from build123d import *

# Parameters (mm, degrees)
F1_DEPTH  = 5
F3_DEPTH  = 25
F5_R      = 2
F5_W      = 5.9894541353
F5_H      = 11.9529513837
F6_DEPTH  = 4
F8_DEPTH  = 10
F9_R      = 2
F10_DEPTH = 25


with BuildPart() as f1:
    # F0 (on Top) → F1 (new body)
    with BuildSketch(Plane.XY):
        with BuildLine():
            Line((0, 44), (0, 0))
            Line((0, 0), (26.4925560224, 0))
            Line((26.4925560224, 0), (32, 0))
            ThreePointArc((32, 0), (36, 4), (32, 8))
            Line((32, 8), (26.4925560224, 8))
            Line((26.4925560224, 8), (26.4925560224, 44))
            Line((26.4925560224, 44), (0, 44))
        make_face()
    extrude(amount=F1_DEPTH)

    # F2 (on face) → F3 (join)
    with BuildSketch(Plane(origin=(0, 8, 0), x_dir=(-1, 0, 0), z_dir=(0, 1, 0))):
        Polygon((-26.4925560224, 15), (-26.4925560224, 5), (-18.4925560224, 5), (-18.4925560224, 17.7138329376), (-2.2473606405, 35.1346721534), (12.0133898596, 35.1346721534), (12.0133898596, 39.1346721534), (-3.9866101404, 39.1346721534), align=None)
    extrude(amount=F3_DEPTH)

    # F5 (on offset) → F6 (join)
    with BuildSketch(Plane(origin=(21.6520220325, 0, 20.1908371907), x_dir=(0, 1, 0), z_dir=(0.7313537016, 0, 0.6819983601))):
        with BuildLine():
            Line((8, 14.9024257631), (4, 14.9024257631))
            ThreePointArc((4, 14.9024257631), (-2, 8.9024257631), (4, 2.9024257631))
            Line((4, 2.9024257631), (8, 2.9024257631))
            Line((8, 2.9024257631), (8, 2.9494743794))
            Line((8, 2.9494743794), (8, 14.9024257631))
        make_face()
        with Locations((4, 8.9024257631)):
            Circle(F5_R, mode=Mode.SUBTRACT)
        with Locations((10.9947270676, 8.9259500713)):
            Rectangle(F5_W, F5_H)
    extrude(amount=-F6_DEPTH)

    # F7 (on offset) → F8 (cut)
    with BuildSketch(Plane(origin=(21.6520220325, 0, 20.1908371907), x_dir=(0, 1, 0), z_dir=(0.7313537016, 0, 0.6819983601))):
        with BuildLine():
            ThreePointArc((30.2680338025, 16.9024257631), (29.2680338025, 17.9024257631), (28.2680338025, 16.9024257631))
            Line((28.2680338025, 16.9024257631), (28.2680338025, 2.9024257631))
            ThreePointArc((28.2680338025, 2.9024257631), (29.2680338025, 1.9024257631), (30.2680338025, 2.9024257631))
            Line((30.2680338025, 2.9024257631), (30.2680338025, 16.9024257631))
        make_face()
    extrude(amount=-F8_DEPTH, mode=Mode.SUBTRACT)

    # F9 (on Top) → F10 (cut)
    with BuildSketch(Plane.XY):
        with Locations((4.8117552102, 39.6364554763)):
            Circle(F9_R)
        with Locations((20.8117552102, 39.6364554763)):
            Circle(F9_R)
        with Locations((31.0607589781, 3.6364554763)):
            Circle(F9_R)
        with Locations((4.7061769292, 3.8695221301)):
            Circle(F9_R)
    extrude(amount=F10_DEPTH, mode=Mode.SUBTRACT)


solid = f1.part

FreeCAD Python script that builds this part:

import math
import FreeCAD as App
import Part
import Sketcher

V = App.Vector
Q = App.Units.Quantity

doc = App.newDocument("Part")
body = doc.addObject("PartDesign::Body", "Body")

# Sketch on XY plane
sketch1 = doc.addObject("Sketcher::SketchObject", "Sketch")
body.addObject(sketch1)
sketch1.AttachmentSupport = (doc.XY_Plane, [""])
sketch1.MapMode = "FlatFace"
sketch1.addGeometry(Part.LineSegment(V(0, 44, 0), V(0, 0, 0)), False)
sketch1.addGeometry(Part.LineSegment(V(0, 0, 0), V(32, 0, 0)), False)
sketch1.addGeometry(Part.ArcOfCircle(Part.Circle(V(32, 4, 0), V(0, 0, 1), 4), math.radians(-90), math.radians(90)), False)
sketch1.addGeometry(Part.LineSegment(V(32, 8, 0), V(26.5, 8, 0)), False)
sketch1.addGeometry(Part.LineSegment(V(26.5, 8, 0), V(26.5, 44, 0)), False)
sketch1.addGeometry(Part.LineSegment(V(26.5, 44, 0), V(0, 44, 0)), False)
sketch1.addConstraint(Sketcher.Constraint("Coincident", 0, 2, 1, 1))
sketch1.addConstraint(Sketcher.Constraint("Tangent", 1, 2, 2, 1))
sketch1.addConstraint(Sketcher.Constraint("Tangent", 2, 2, 3, 1))
sketch1.addConstraint(Sketcher.Constraint("Coincident", 3, 2, 4, 1))
sketch1.addConstraint(Sketcher.Constraint("Coincident", 4, 2, 5, 1))
sketch1.addConstraint(Sketcher.Constraint("Coincident", 5, 2, 0, 1))
sketch1.addConstraint(Sketcher.Constraint("Vertical", 0))
sketch1.addConstraint(Sketcher.Constraint("Horizontal", 1))
sketch1.addConstraint(Sketcher.Constraint("Horizontal", 3))
sketch1.addConstraint(Sketcher.Constraint("Vertical", 4))
sketch1.addConstraint(Sketcher.Constraint("Horizontal", 5))
sketch1.addConstraint(Sketcher.Constraint("Coincident", 0, 2, -1, 1))
sketch1.addConstraint(Sketcher.Constraint("Radius", 2, Q("4 mm")))
sketch1.addConstraint(Sketcher.Constraint("DistanceX", 1, 1, 1, 2, Q("32 mm")))
sketch1.addConstraint(Sketcher.Constraint("DistanceY", 0, 2, 0, 1, Q("44 mm")))
sketch1.addConstraint(Sketcher.Constraint("DistanceX", 3, 2, 3, 1, Q("5.507444 mm")))
pad1 = doc.addObject("PartDesign::Pad", "Pad")
body.addObject(pad1)
pad1.Profile = sketch1
pad1.Length = 5

# Sketch on XZ plane
sketch2 = doc.addObject("Sketcher::SketchObject", "Sketch001")
body.addObject(sketch2)
sketch2.AttachmentSupport = (doc.XZ_Plane, [""])
sketch2.MapMode = "FlatFace"
sketch2.AttachmentOffset = App.Placement(V(0, 0, -8), App.Rotation())
sketch2.addGeometry(Part.LineSegment(V(26.5, 15, 0), V(26.5, 5, 0)), False)
sketch2.addGeometry(Part.LineSegment(V(26.5, 5, 0), V(18.5, 5, 0)), False)
sketch2.addGeometry(Part.LineSegment(V(18.5, 5, 0), V(18.5, 17.7, 0)), False)
sketch2.addGeometry(Part.LineSegment(V(18.5, 17.7, 0), V(2.2, 35.1, 0)), False)
sketch2.addGeometry(Part.LineSegment(V(2.2, 35.1, 0), V(-12, 35.1, 0)), False)
sketch2.addGeometry(Part.LineSegment(V(-12, 35.1, 0), V(-12, 39.1, 0)), False)
sketch2.addGeometry(Part.LineSegment(V(-12, 39.1, 0), V(4, 39.1, 0)), False)
sketch2.addGeometry(Part.LineSegment(V(4, 39.1, 0), V(26.5, 15, 0)), False)
sketch2.addConstraint(Sketcher.Constraint("Coincident", 0, 2, 1, 1))
sketch2.addConstraint(Sketcher.Constraint("Coincident", 1, 2, 2, 1))
sketch2.addConstraint(Sketcher.Constraint("Coincident", 2, 2, 3, 1))
sketch2.addConstraint(Sketcher.Constraint("Coincident", 3, 2, 4, 1))
sketch2.addConstraint(Sketcher.Constraint("Coincident", 4, 2, 5, 1))
sketch2.addConstraint(Sketcher.Constraint("Coincident", 5, 2, 6, 1))
sketch2.addConstraint(Sketcher.Constraint("Coincident", 6, 2, 7, 1))
sketch2.addConstraint(Sketcher.Constraint("Coincident", 7, 2, 0, 1))
sketch2.addConstraint(Sketcher.Constraint("Vertical", 0))
sketch2.addConstraint(Sketcher.Constraint("Horizontal", 1))
sketch2.addConstraint(Sketcher.Constraint("Vertical", 2))
sketch2.addConstraint(Sketcher.Constraint("Horizontal", 4))
sketch2.addConstraint(Sketcher.Constraint("Vertical", 5))
sketch2.addConstraint(Sketcher.Constraint("Horizontal", 6))
sketch2.addConstraint(Sketcher.Constraint("Parallel", 3, 7))
sketch2.addConstraint(Sketcher.Constraint("DistanceX", 1, 2, 1, 1, Q("8 mm")))
sketch2.addConstraint(Sketcher.Constraint("DistanceX", 6, 1, 6, 2, Q("16 mm")))
sketch2.addConstraint(Sketcher.Constraint("DistanceY", 0, 2, 0, 1, Q("10 mm")))
sketch2.addConstraint(Sketcher.Constraint("DistanceY", 5, 1, 5, 2, Q("4 mm")))
sketch2.addConstraint(Sketcher.Constraint("Angle", 3, Q("133 deg")))
sketch2.addConstraint(Sketcher.Constraint("Distance", 7, Q("33 mm")))
sketch2.addConstraint(Sketcher.Constraint("DistanceY", -1, 1, 0, 2, Q("5 mm")))
sketch2.addConstraint(Sketcher.Constraint("DistanceX", 4, 2, 4, 1, Q("14.260751 mm")))
sketch2.addConstraint(Sketcher.Constraint("DistanceX", -1, 1, 3, 2, Q("2.247361 mm")))
pad2 = doc.addObject("PartDesign::Pad", "Pad001")
body.addObject(pad2)
pad2.Profile = sketch2
pad2.Length = 25
pad2.Reversed = True

# Sketch on an angled plane
sketch3 = doc.addObject("Sketcher::SketchObject", "Sketch002")
body.addObject(sketch3)
sketch3.Placement = App.Placement(V(21.652022, 0, 20.190837), App.Rotation(V(0, 1, 0), V(-0.68199836, 0, 0.731353702), V(0.731353702, 0, 0.68199836), "ZXY"))
sketch3.addGeometry(Part.LineSegment(V(8, 14.902, 0), V(4, 14.902, 0)), False)
sketch3.addGeometry(Part.ArcOfCircle(Part.Circle(V(4, 8.902, 0), V(0, 0, 1), 6), math.radians(90), math.radians(270)), False)
sketch3.addGeometry(Part.LineSegment(V(4, 2.902, 0), V(8, 2.902, 0)), False)
sketch3.addGeometry(Part.LineSegment(V(8, 2.902, 0), V(8, 2.949, 0)), False)
sketch3.addGeometry(Part.LineSegment(V(8, 2.949, 0), V(13.989, 2.949, 0)), False)
sketch3.addGeometry(Part.LineSegment(V(13.989, 2.949, 0), V(13.989, 14.902, 0)), False)
sketch3.addGeometry(Part.LineSegment(V(13.989, 14.902, 0), V(8, 14.902, 0)), False)
sketch3.addGeometry(Part.Circle(V(4, 8.902, 0), V(0, 0, 1), 2), False)
sketch3.addConstraint(Sketcher.Constraint("Tangent", 0, 2, 1, 1))
sketch3.addConstraint(Sketcher.Constraint("Tangent", 1, 2, 2, 1))
sketch3.addConstraint(Sketcher.Constraint("Coincident", 2, 2, 3, 1))
sketch3.addConstraint(Sketcher.Constraint("Coincident", 3, 2, 4, 1))
sketch3.addConstraint(Sketcher.Constraint("Coincident", 4, 2, 5, 1))
sketch3.addConstraint(Sketcher.Constraint("Coincident", 5, 2, 6, 1))
sketch3.addConstraint(Sketcher.Constraint("Coincident", 6, 2, 0, 1))
sketch3.addConstraint(Sketcher.Constraint("Horizontal", 0))
sketch3.addConstraint(Sketcher.Constraint("Horizontal", 2))
sketch3.addConstraint(Sketcher.Constraint("Vertical", 3))
sketch3.addConstraint(Sketcher.Constraint("Horizontal", 4))
sketch3.addConstraint(Sketcher.Constraint("Vertical", 5))
sketch3.addConstraint(Sketcher.Constraint("Horizontal", 6))
sketch3.addConstraint(Sketcher.Constraint("Coincident", 7, 3, 1, 3))
sketch3.addConstraint(Sketcher.Constraint("Vertical", 3, 2, 6, 2))
sketch3.addConstraint(Sketcher.Constraint("Diameter", 7, Q("4 mm")))
sketch3.addConstraint(Sketcher.Constraint("Radius", 1, Q("6 mm")))
sketch3.addConstraint(Sketcher.Constraint("DistanceX", 0, 2, 0, 1, Q("4 mm")))
sketch3.addConstraint(Sketcher.Constraint("DistanceX", -1, 1, 1, 3, Q("4 mm")))
sketch3.addConstraint(Sketcher.Constraint("DistanceY", 3, 1, 3, 2, Q("0.047049 mm")))
sketch3.addConstraint(Sketcher.Constraint("DistanceX", 4, 1, 4, 2, Q("5.989454 mm")))
sketch3.addConstraint(Sketcher.Constraint("DistanceY", -1, 1, 1, 3, Q("8.902426 mm")))
pad3 = doc.addObject("PartDesign::Pad", "Pad002")
body.addObject(pad3)
pad3.Profile = sketch3
pad3.Length = 4
pad3.Reversed = True

# Sketch on an angled plane
sketch4 = doc.addObject("Sketcher::SketchObject", "Sketch003")
body.addObject(sketch4)
sketch4.Placement = App.Placement(V(21.652022, 0, 20.190837), App.Rotation(V(0, 1, 0), V(-0.68199836, 0, 0.731353702), V(0.731353702, 0, 0.68199836), "ZXY"))
sketch4.addGeometry(Part.ArcOfCircle(Part.Circle(V(29.3, 16.9, 0), V(0, 0, 1), 1), math.radians(0), math.radians(180)), False)
sketch4.addGeometry(Part.LineSegment(V(28.3, 16.9, 0), V(28.3, 2.9, 0)), False)
sketch4.addGeometry(Part.ArcOfCircle(Part.Circle(V(29.3, 2.9, 0), V(0, 0, 1), 1), math.radians(180), math.radians(360)), False)
sketch4.addGeometry(Part.LineSegment(V(30.3, 2.9, 0), V(30.3, 16.9, 0)), False)
sketch4.addConstraint(Sketcher.Constraint("Tangent", 0, 2, 1, 1))
sketch4.addConstraint(Sketcher.Constraint("Tangent", 1, 2, 2, 1))
sketch4.addConstraint(Sketcher.Constraint("Tangent", 2, 2, 3, 1))
sketch4.addConstraint(Sketcher.Constraint("Tangent", 3, 2, 0, 1))
sketch4.addConstraint(Sketcher.Constraint("Vertical", 1))
sketch4.addConstraint(Sketcher.Constraint("Vertical", 3))
sketch4.addConstraint(Sketcher.Constraint("Radius", 0, Q("1 mm")))
sketch4.addConstraint(Sketcher.Constraint("DistanceY", 1, 2, 1, 1, Q("14 mm")))
sketch4.addConstraint(Sketcher.Constraint("DistanceX", -1, 1, 0, 3, Q("29.268034 mm")))
sketch4.addConstraint(Sketcher.Constraint("DistanceY", -1, 1, 0, 3, Q("16.902426 mm")))
pocket1 = doc.addObject("PartDesign::Pocket", "Pocket")
body.addObject(pocket1)
pocket1.Profile = sketch4
pocket1.Length = 10

# Sketch on XY plane
sketch5 = doc.addObject("Sketcher::SketchObject", "Sketch004")
body.addObject(sketch5)
sketch5.AttachmentSupport = (doc.XY_Plane, [""])
sketch5.MapMode = "FlatFace"
sketch5.addGeometry(Part.Circle(V(4.8, 39.6, 0), V(0, 0, 1), 2), False)
sketch5.addGeometry(Part.Circle(V(20.8, 39.6, 0), V(0, 0, 1), 2), False)
sketch5.addGeometry(Part.Circle(V(31.1, 3.6, 0), V(0, 0, 1), 2), False)
sketch5.addGeometry(Part.Circle(V(4.7, 3.9, 0), V(0, 0, 1), 2), False)
sketch5.addConstraint(Sketcher.Constraint("Equal", 0, 1))
sketch5.addConstraint(Sketcher.Constraint("Equal", 1, 2))
sketch5.addConstraint(Sketcher.Constraint("Equal", 2, 3))
sketch5.addConstraint(Sketcher.Constraint("Horizontal", 0, 3, 1, 3))
sketch5.addConstraint(Sketcher.Constraint("Diameter", 0, Q("4 mm")))
sketch5.addConstraint(Sketcher.Constraint("DistanceX", 0, 3, 1, 3, Q("16 mm")))
sketch5.addConstraint(Sketcher.Constraint("DistanceY", 2, 3, 1, 3, Q("36 mm")))
sketch5.addConstraint(Sketcher.Constraint("DistanceX", -1, 1, 2, 3, Q("31.060759 mm")))
sketch5.addConstraint(Sketcher.Constraint("DistanceX", 3, 3, 0, 3, Q("0.105578 mm")))
sketch5.addConstraint(Sketcher.Constraint("DistanceX", -1, 1, 0, 3, Q("4.811755 mm")))
sketch5.addConstraint(Sketcher.Constraint("DistanceY", -1, 1, 0, 3, Q("39.636455 mm")))
sketch5.addConstraint(Sketcher.Constraint("DistanceY", -1, 1, 3, 3, Q("3.869522 mm")))
pocket2 = doc.addObject("PartDesign::Pocket", "Pocket001")
body.addObject(pocket2)
pocket2.Profile = sketch5
pocket2.Length = 25
pocket2.Reversed = True

doc.recompute()
